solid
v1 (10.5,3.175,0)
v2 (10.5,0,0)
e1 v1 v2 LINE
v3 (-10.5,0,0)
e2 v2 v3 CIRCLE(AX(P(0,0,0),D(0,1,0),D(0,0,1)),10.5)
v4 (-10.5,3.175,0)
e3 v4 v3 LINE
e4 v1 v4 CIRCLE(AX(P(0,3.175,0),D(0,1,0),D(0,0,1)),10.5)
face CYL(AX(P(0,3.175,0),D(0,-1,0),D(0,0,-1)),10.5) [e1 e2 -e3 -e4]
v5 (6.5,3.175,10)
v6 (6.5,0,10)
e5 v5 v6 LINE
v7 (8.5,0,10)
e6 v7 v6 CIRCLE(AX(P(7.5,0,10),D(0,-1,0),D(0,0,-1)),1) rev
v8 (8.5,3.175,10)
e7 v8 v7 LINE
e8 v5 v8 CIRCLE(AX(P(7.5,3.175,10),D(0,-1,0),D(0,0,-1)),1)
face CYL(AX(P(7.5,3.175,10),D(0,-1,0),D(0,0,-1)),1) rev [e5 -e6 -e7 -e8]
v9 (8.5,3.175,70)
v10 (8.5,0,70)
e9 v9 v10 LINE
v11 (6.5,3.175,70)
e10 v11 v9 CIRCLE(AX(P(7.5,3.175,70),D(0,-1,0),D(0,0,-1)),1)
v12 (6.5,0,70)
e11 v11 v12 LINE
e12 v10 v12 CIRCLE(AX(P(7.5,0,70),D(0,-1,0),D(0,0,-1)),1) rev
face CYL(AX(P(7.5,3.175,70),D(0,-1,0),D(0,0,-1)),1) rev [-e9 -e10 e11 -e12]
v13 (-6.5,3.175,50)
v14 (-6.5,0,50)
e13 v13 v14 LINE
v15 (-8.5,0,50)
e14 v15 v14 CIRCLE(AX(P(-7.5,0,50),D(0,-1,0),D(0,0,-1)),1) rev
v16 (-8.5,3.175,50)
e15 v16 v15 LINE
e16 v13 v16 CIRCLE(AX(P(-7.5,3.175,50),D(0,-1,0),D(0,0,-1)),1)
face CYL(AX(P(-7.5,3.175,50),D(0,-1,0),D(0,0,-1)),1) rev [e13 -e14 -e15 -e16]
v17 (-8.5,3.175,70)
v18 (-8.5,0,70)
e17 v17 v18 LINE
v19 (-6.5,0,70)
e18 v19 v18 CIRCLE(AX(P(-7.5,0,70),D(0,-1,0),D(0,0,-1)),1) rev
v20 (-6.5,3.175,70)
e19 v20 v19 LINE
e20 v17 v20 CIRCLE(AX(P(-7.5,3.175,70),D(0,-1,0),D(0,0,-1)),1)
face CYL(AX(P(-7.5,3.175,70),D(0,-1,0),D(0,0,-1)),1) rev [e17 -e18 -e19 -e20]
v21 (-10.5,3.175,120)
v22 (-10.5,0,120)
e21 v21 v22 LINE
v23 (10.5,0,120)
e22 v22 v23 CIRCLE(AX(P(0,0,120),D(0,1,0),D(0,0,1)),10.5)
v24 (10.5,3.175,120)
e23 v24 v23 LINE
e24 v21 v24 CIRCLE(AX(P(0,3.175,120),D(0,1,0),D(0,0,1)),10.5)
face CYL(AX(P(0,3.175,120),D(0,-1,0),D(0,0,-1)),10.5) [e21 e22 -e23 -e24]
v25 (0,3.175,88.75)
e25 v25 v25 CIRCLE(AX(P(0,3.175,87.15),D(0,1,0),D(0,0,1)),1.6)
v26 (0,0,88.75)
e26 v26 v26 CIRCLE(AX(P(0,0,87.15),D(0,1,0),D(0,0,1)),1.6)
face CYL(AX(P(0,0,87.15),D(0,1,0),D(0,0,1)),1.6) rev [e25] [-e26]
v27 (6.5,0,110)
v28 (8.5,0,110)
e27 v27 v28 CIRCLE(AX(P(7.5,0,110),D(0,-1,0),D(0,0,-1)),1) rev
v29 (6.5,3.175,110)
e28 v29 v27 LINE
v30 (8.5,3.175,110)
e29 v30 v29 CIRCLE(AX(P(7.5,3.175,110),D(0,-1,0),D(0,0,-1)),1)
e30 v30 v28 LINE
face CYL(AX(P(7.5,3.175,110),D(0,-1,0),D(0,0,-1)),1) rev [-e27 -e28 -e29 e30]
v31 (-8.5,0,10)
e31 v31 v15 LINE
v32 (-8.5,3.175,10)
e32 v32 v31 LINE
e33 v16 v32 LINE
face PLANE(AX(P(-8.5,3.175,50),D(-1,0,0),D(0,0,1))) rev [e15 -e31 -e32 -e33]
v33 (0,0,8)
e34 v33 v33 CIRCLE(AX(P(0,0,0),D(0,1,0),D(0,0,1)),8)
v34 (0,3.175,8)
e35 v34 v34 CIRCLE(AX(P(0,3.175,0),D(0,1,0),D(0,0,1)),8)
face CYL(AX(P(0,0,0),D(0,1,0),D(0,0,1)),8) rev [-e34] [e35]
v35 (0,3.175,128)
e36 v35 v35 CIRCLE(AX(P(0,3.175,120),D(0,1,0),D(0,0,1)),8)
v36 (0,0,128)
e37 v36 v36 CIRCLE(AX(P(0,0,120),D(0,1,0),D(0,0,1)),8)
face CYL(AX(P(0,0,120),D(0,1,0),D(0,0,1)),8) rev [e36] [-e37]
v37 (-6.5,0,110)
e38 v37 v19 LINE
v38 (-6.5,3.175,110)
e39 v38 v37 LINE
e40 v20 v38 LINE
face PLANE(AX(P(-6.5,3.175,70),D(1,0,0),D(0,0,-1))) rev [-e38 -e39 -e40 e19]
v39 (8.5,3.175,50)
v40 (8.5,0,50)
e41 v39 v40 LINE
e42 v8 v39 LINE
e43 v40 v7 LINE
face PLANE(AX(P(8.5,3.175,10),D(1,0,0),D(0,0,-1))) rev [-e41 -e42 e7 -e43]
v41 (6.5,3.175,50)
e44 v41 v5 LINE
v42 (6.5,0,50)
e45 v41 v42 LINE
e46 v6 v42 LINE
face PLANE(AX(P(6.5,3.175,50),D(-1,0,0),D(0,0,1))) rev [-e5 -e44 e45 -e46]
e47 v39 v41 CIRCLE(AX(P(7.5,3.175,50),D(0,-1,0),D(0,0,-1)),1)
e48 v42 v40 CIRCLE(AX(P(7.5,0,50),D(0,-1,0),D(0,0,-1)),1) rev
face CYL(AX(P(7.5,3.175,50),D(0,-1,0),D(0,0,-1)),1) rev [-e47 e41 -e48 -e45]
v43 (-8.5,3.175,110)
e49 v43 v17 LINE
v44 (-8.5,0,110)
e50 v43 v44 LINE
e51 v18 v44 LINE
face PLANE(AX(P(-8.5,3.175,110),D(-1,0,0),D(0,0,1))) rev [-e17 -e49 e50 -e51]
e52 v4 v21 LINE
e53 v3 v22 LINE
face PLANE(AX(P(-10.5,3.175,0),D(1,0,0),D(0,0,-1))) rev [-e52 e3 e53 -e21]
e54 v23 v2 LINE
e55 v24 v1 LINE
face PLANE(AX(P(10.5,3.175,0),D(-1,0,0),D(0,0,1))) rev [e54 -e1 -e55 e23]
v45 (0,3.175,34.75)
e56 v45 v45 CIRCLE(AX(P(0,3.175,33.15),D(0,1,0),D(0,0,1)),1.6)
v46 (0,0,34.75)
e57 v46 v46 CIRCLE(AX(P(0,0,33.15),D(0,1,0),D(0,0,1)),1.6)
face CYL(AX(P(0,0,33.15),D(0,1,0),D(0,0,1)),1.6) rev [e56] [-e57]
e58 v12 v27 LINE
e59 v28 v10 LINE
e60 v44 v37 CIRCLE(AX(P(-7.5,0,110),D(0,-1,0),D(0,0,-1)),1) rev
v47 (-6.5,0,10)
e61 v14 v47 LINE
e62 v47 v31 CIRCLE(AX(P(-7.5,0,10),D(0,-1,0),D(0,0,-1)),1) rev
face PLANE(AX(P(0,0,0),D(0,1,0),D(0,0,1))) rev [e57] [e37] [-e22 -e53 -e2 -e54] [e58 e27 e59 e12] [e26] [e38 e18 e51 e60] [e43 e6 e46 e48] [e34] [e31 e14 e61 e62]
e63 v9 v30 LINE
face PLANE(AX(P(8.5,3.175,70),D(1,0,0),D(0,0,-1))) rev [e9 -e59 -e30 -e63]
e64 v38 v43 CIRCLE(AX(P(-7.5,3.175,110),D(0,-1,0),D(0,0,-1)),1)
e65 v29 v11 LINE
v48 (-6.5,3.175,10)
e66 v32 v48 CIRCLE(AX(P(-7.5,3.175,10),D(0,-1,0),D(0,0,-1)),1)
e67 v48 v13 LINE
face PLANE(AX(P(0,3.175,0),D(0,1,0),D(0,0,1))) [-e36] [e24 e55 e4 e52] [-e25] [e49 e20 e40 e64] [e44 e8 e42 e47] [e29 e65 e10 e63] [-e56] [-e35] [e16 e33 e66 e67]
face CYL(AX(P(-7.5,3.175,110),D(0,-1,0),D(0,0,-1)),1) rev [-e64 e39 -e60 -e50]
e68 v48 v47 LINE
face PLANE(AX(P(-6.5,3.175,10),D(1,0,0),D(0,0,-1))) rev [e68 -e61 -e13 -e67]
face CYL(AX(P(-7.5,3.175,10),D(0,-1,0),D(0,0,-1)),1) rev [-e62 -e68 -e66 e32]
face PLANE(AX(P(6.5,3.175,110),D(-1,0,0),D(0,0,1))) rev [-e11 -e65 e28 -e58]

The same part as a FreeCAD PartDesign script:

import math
import FreeCAD as App
import Part
import Sketcher

doc = App.newDocument("Part")
body = doc.addObject("PartDesign::Body", "Body")

sketch1 = body.newObject("Sketcher::SketchObject", "Sketch")
sketch1.AttachmentSupport = (doc.getObject("XZ_Plane"), [""])
sketch1.MapMode = "FlatFace"
sketch1.addGeometry([
    Part.LineSegment(App.Vector(-10, 0, 0), App.Vector(-10, 120, 0)),
    Part.ArcOfCircle(Part.Circle(App.Vector(0, 120, 0), App.Vector(0, 0, 1), 10), math.radians(0), math.radians(180)),
    Part.LineSegment(App.Vector(10, 120, 0), App.Vector(10, 0, 0)),
    Part.ArcOfCircle(Part.Circle(App.Vector(0, 0, 0), App.Vector(0, 0, 1), 10), math.radians(180), math.radians(360)),
], False)
sketch1.addConstraint([
    Sketcher.Constraint("Tangent", 0, 2, 1, 2),
    Sketcher.Constraint("Tangent", 1, 1, 2, 1),
    Sketcher.Constraint("Tangent", 2, 2, 3, 2),
    Sketcher.Constraint("Tangent", 3, 1, 0, 1),
    Sketcher.Constraint("Vertical", 0),
    Sketcher.Constraint("Vertical", 2),
    Sketcher.Constraint("Coincident", 3, 3, -1, 1),
    Sketcher.Constraint("Radius", 1, 10.5),
    Sketcher.Constraint("DistanceY", 0, 1, 0, 2, 120.0),
])
pad1 = body.newObject("PartDesign::Pad", "Pad")
pad1.Profile = sketch1
pad1.Length = 3.175
pad1.Reversed = True

sketch2 = body.newObject("Sketcher::SketchObject", "Sketch001")
sketch2.AttachmentSupport = (doc.getObject("XZ_Plane"), [""])
sketch2.MapMode = "FlatFace"
sketch2.addGeometry([
    Part.LineSegment(App.Vector(-8.5, 110, 0), App.Vector(-8.5, 70, 0)),
    Part.ArcOfCircle(Part.Circle(App.Vector(-7.5, 70, 0), App.Vector(0, 0, 1), 1), math.radians(180), math.radians(360)),
    Part.LineSegment(App.Vector(-6.5, 70, 0), App.Vector(-6.5, 110, 0)),
    Part.ArcOfCircle(Part.Circle(App.Vector(-7.5, 110, 0), App.Vector(0, 0, 1), 1), math.radians(0), math.radians(180)),
    Part.LineSegment(App.Vector(6.5, 110, 0), App.Vector(6.5, 70, 0)),
    Part.ArcOfCircle(Part.Circle(App.Vector(7.5, 70, 0), App.Vector(0, 0, 1), 1), math.radians(180), math.radians(360)),
    Part.LineSegment(App.Vector(8.5, 70, 0), App.Vector(8.5, 110, 0)),
    Part.ArcOfCircle(Part.Circle(App.Vector(7.5, 110, 0), App.Vector(0, 0, 1), 1), math.radians(0), math.radians(180)),
    Part.LineSegment(App.Vector(8.5, 10, 0), App.Vector(8.5, 50, 0)),
    Part.ArcOfCircle(Part.Circle(App.Vector(7.5, 50, 0), App.Vector(0, 0, 1), 1), math.radians(0), math.radians(180)),
    Part.LineSegment(App.Vector(6.5, 50, 0), App.Vector(6.5, 10, 0)),
    Part.ArcOfCircle(Part.Circle(App.Vector(7.5, 10, 0), App.Vector(0, 0, 1), 1), math.radians(180), math.radians(360)),
    Part.LineSegment(App.Vector(-8.5, 50, 0), App.Vector(-8.5, 10, 0)),
    Part.ArcOfCircle(Part.Circle(App.Vector(-7.5, 10, 0), App.Vector(0, 0, 1), 1), math.radians(180), math.radians(360)),
    Part.LineSegment(App.Vector(-6.5, 10, 0), App.Vector(-6.5, 50, 0)),
    Part.ArcOfCircle(Part.Circle(App.Vector(-7.5, 50, 0), App.Vector(0, 0, 1), 1), math.radians(0), math.radians(180)),
], False)
sketch2.addConstraint([
    Sketcher.Constraint("Tangent", 0, 2, 1, 1),
    Sketcher.Constraint("Tangent", 1, 2, 2, 1),
    Sketcher.Constraint("Tangent", 2, 2, 3, 1),
    Sketcher.Constraint("Tangent", 3, 2, 0, 1),
    Sketcher.Constraint("Tangent", 4, 2, 5, 1),
    Sketcher.Constraint("Tangent", 5, 2, 6, 1),
    Sketcher.Constraint("Tangent", 6, 2, 7, 1),
    Sketcher.Constraint("Tangent", 7, 2, 4, 1),
    Sketcher.Constraint("Tangent", 8, 2, 9, 1),
    Sketcher.Constraint("Tangent", 9, 2, 10, 1),
    Sketcher.Constraint("Tangent", 10, 2, 11, 1),
    Sketcher.Constraint("Tangent", 11, 2, 8, 1),
    Sketcher.Constraint("Tangent", 12, 2, 13, 1),
    Sketcher.Constraint("Tangent", 13, 2, 14, 1),
    Sketcher.Constraint("Tangent", 14, 2, 15, 1),
    Sketcher.Constraint("Tangent", 15, 2, 12, 1),
    Sketcher.Constraint("Vertical", 0),
    Sketcher.Constraint("Vertical", 2),
    Sketcher.Constraint("Vertical", 4),
    Sketcher.Constraint("Vertical", 6),
    Sketcher.Constraint("Vertical", 8),
    Sketcher.Constraint("Vertical", 10),
    Sketcher.Constraint("Vertical", 12),
    Sketcher.Constraint("Vertical", 14),
    Sketcher.Constraint("Equal", 3, 5),
    Sketcher.Constraint("Equal", 7, 9),
    Sketcher.Constraint("Equal", 11, 13),
    Sketcher.Constraint("Symmetric", 1, 3, 5, 3, -2),
    Sketcher.Constraint("Symmetric", 11, 3, 13, 3, -2),
    Sketcher.Constraint("Horizontal", 3, 3, 7, 3),
    Sketcher.Constraint("Horizontal", 9, 3, 15, 3),
    Sketcher.Constraint("Vertical", 7, 3, 9, 3),
    Sketcher.Constraint("Equal", 6, 8),
    Sketcher.Constraint("Radius", 1, 1.0),
    Sketcher.Constraint("DistanceY", 0, 2, 0, 1, 40.0),
    Sketcher.Constraint("DistanceY", -1, 1, 1, 3, 70.0),
    Sketcher.Constraint("DistanceY", -1, 1, 9, 3, 50.0),
    Sketcher.Constraint("DistanceX", 1, 3, 5, 3, 15.0),
])
pocket1 = body.newObject("PartDesign::Pocket", "Pocket")
pocket1.Profile = sketch2
pocket1.Type = "ThroughAll"
pocket1.Midplane = True

sketch3 = body.newObject("Sketcher::SketchObject", "Sketch002")
sketch3.AttachmentSupport = (doc.getObject("XZ_Plane"), [""])
sketch3.MapMode = "FlatFace"
sketch3.AttachmentOffset = App.Placement(App.Vector(0, 0, -3.175), App.Rotation())
sketch3.addGeometry([
    Part.Circle(App.Vector(0, 33.1, 0), App.Vector(0, 0, 1), 1.6),
    Part.Circle(App.Vector(0, 87.2, 0), App.Vector(0, 0, 1), 1.6),
], False)
sketch3.addConstraint([
    Sketcher.Constraint("Equal", 0, 1),
    Sketcher.Constraint("PointOnObject", 0, 3, -2),
    Sketcher.Constraint("PointOnObject", 1, 3, -2),
    Sketcher.Constraint("Diameter", 0, 3.2),
    Sketcher.Constraint("DistanceY", 0, 3, 1, 3, 54.0),
    Sketcher.Constraint("DistanceY", -1, 1, 0, 3, 33.15),
])
pocket2 = body.newObject("PartDesign::Pocket", "Pocket001")
pocket2.Profile = sketch3
pocket2.Type = "ThroughAll"
pocket2.Midplane = True

sketch4 = body.newObject("Sketcher::SketchObject", "Sketch003")
sketch4.AttachmentSupport = (doc.getObject("XZ_Plane"), [""])
sketch4.MapMode = "FlatFace"
sketch4.AttachmentOffset = App.Placement(App.Vector(0, 0, -3.175), App.Rotation())
sketch4.addGeometry([
    Part.Circle(App.Vector(0, 0, 0), App.Vector(0, 0, 1), 8),
    Part.Circle(App.Vector(0, 120, 0), App.Vector(0, 0, 1), 8),
], False)
sketch4.addConstraint([
    Sketcher.Constraint("Coincident", 0, 3, -1, 1),
    Sketcher.Constraint("Equal", 0, 1),
    Sketcher.Constraint("PointOnObject", 1, 3, -2),
    Sketcher.Constraint("Diameter", 0, 16.0),
    Sketcher.Constraint("DistanceY", -1, 1, 1, 3, 120.0),
])
pocket3 = body.newObject("PartDesign::Pocket", "Pocket002")
pocket3.Profile = sketch4
pocket3.Type = "ThroughAll"
pocket3.Midplane = True

doc.recompute()
